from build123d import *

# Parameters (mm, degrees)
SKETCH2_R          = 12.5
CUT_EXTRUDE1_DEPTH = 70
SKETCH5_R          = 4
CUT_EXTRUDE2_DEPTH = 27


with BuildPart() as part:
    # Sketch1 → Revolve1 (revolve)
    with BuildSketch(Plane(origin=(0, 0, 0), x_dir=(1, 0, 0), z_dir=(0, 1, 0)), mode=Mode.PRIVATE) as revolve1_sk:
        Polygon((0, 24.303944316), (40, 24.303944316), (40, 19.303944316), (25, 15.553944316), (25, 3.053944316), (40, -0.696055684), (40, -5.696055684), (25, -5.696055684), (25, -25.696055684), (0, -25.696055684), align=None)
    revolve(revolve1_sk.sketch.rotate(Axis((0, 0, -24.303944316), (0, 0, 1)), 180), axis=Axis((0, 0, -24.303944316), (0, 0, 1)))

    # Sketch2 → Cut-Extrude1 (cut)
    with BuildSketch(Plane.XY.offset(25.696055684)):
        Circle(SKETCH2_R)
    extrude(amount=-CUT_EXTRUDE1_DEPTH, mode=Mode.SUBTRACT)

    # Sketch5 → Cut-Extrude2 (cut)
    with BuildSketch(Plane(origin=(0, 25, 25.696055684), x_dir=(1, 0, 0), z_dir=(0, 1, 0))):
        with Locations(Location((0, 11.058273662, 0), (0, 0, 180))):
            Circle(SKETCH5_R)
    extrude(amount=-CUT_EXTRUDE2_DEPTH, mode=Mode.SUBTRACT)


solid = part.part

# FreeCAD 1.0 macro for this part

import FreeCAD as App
import Part
import Sketcher

V = App.Vector

doc = App.newDocument("Part")
body = doc.addObject("PartDesign::Body", "Body")

# Sketch on XZ plane
sketch1 = body.newObject("Sketcher::SketchObject", "Sketch")
sketch1.AttachmentSupport = (doc.getObject("XZ_Plane"), [""])
sketch1.MapMode = "FlatFace"
sketch1.addGeometry(Part.LineSegment(V(40, -24, 0), V(0, -24, 0)), False)
sketch1.addGeometry(Part.LineSegment(V(0, -24, 0), V(0, 26, 0)), False)
sketch1.addGeometry(Part.LineSegment(V(0, 26, 0), V(25, 26, 0)), False)
sketch1.addGeometry(Part.LineSegment(V(25, 26, 0), V(25, 6, 0)), False)
sketch1.addGeometry(Part.LineSegment(V(25, 6, 0), V(40, 6, 0)), False)
sketch1.addGeometry(Part.LineSegment(V(40, 6, 0), V(40, 1, 0)), False)
sketch1.addGeometry(Part.LineSegment(V(40, 1, 0), V(25, -3, 0)), False)
sketch1.addGeometry(Part.LineSegment(V(25, -3, 0), V(25, -16, 0)), False)
sketch1.addGeometry(Part.LineSegment(V(25, -16, 0), V(40, -19, 0)), False)
sketch1.addGeometry(Part.LineSegment(V(40, -19, 0), V(40, -24, 0)), False)
sketch1.addConstraint(Sketcher.Constraint("Coincident", 0, 2, 1, 1))
sketch1.addConstraint(Sketcher.Constraint("Coincident", 1, 2, 2, 1))
sketch1.addConstraint(Sketcher.Constraint("Coincident", 2, 2, 3, 1))
sketch1.addConstraint(Sketcher.Constraint("Coincident", 3, 2, 4, 1))
sketch1.addConstraint(Sketcher.Constraint("Coincident", 4, 2, 5, 1))
sketch1.addConstraint(Sketcher.Constraint("Coincident", 5, 2, 6, 1))
sketch1.addConstraint(Sketcher.Constraint("Coincident", 6, 2, 7, 1))
sketch1.addConstraint(Sketcher.Constraint("Coincident", 7, 2, 8, 1))
sketch1.addConstraint(Sketcher.Constraint("Coincident", 8, 2, 9, 1))
sketch1.addConstraint(Sketcher.Constraint("Coincident", 9, 2, 0, 1))
sketch1.addConstraint(Sketcher.Constraint("Horizontal", 0))
sketch1.addConstraint(Sketcher.Constraint("Vertical", 1))
sketch1.addConstraint(Sketcher.Constraint("Horizontal", 2))
sketch1.addConstraint(Sketcher.Constraint("Vertical", 3))
sketch1.addConstraint(Sketcher.Constraint("Horizontal", 4))
sketch1.addConstraint(Sketcher.Constraint("Vertical", 5))
sketch1.addConstraint(Sketcher.Constraint("Vertical", 7))
sketch1.addConstraint(Sketcher.Constraint("Vertical", 9))
sketch1.addConstraint(Sketcher.Constraint("PointOnObject", 0, 2, -2))
sketch1.addConstraint(Sketcher.Constraint("Vertical", 3, 2, 6, 2))
sketch1.addConstraint(Sketcher.Constraint("Vertical", 5, 2, 8, 2))
sketch1.addConstraint(Sketcher.Constraint("Equal", 5, 9))
sketch1.addConstraint(Sketcher.Constraint("Equal", 6, 8))
sketch1.addConstraint(Sketcher.Constraint("DistanceX", 0, 2, 0, 1, 40.0))
sketch1.addConstraint(Sketcher.Constraint("DistanceX", 2, 1, 2, 2, 25.0))
sketch1.addConstraint(Sketcher.Constraint("DistanceY", 1, 1, 1, 2, 50.0))
sketch1.addConstraint(Sketcher.Constraint("DistanceY", 3, 2, 3, 1, 20.0))
sketch1.addConstraint(Sketcher.Constraint("DistanceY", 5, 2, 5, 1, 5.0))
sketch1.addConstraint(Sketcher.Constraint("DistanceY", 7, 2, 7, 1, 12.5))
sketch1.addConstraint(Sketcher.Constraint("DistanceY", 0, 2, -1, 1, 24.303944))
revolution = body.newObject("PartDesign::Revolution", "Revolution")
revolution.Profile = sketch1
revolution.ReferenceAxis = (sketch1, ["V_Axis"])
revolution.Angle = 360

# Sketch on XY plane
sketch2 = body.newObject("Sketcher::SketchObject", "Sketch001")
sketch2.AttachmentSupport = (doc.getObject("XY_Plane"), [""])
sketch2.MapMode = "FlatFace"
sketch2.AttachmentOffset = App.Placement(V(0, 0, 25.696056), App.Rotation())
sketch2.addGeometry(Part.Circle(V(0, 0, 0), V(0, 0, 1), 12), False)
sketch2.addConstraint(Sketcher.Constraint("Coincident", 0, 3, -1, 1))
sketch2.addConstraint(Sketcher.Constraint("Diameter", 0, 25.0))
pocket1 = body.newObject("PartDesign::Pocket", "Pocket")
pocket1.Profile = sketch2
pocket1.Length = 70

# Sketch on XZ plane
sketch3 = body.newObject("Sketcher::SketchObject", "Sketch002")
sketch3.AttachmentSupport = (doc.getObject("XZ_Plane"), [""])
sketch3.MapMode = "FlatFace"
sketch3.AttachmentOffset = App.Placement(V(0, 0, -25), App.Rotation())
sketch3.addGeometry(Part.Circle(V(0, 14.6, 0), V(0, 0, 1), 4), False)
sketch3.addConstraint(Sketcher.Constraint("PointOnObject", 0, 3, -2))
sketch3.addConstraint(Sketcher.Constraint("Diameter", 0, 8.0))
sketch3.addConstraint(Sketcher.Constraint("DistanceY", -1, 1, 0, 3, 14.637782))
pocket2 = body.newObject("PartDesign::Pocket", "Pocket001")
pocket2.Profile = sketch3
pocket2.Length = 27
pocket2.Reversed = True

doc.recompute()
